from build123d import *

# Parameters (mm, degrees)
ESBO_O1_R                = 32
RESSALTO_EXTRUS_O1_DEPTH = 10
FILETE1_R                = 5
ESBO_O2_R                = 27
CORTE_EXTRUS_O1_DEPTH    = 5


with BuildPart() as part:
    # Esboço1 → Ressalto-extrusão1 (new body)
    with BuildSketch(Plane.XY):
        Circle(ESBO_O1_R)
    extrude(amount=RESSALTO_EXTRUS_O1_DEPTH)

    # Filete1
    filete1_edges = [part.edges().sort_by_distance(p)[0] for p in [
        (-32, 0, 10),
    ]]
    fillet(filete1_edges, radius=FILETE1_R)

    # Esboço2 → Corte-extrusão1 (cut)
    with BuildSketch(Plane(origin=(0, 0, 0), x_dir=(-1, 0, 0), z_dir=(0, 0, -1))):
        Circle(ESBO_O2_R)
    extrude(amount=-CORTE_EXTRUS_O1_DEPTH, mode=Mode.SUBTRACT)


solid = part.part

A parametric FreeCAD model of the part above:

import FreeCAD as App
import Part
import Sketcher
Q = App.Units.Quantity


def edges_at(feature, points):
    """Names of the edges that pass closest to the given points."""
    edges = feature.Shape.Edges
    near = lambda p: min(range(len(edges)), key=lambda i: edges[i].distToShape(Part.Vertex(*p))[0])
    return sorted({f"Edge{near(p) + 1}" for p in points})

doc = App.newDocument("Part")
body = doc.addObject("PartDesign::Body", "Body")

# Sketch on XY plane
sketch1 = body.newObject("Sketcher::SketchObject", "Sketch")
sketch1.AttachmentSupport = (doc.getObject("XY_Plane"), [""])
sketch1.MapMode = "FlatFace"
sketch1.addGeometry(Part.Circle(App.Vector(0, 0, 0), App.Vector(0, 0, 1), 32), False)
sketch1.addConstraint([
    Sketcher.Constraint("Coincident", 0, 3, -1, 1),
    Sketcher.Constraint("Diameter", 0, Q("64 mm")),
])
pad1 = body.newObject("PartDesign::Pad", "Pad")
pad1.Profile = sketch1
pad1.Length = 10
doc.recompute()

fillet = body.newObject("PartDesign::Fillet", "Fillet")
fillet.Base = (pad1, edges_at(pad1, [(-32, 0, 10)]))
fillet.Radius = 5

# Sketch on XY plane
sketch2 = body.newObject("Sketcher::SketchObject", "Sketch001")
sketch2.AttachmentSupport = (doc.getObject("XY_Plane"), [""])
sketch2.MapMode = "FlatFace"
sketch2.addGeometry(Part.Circle(App.Vector(0, 0, 0), App.Vector(0, 0, 1), 27), False)
sketch2.addConstraint([
    Sketcher.Constraint("Coincident", 0, 3, -1, 1),
    Sketcher.Constraint("Diameter", 0, Q("54 mm")),
])
pocket1 = body.newObject("PartDesign::Pocket", "Pocket")
pocket1.Profile = sketch2
pocket1.Length = 5
pocket1.Reversed = True

doc.recompute()
